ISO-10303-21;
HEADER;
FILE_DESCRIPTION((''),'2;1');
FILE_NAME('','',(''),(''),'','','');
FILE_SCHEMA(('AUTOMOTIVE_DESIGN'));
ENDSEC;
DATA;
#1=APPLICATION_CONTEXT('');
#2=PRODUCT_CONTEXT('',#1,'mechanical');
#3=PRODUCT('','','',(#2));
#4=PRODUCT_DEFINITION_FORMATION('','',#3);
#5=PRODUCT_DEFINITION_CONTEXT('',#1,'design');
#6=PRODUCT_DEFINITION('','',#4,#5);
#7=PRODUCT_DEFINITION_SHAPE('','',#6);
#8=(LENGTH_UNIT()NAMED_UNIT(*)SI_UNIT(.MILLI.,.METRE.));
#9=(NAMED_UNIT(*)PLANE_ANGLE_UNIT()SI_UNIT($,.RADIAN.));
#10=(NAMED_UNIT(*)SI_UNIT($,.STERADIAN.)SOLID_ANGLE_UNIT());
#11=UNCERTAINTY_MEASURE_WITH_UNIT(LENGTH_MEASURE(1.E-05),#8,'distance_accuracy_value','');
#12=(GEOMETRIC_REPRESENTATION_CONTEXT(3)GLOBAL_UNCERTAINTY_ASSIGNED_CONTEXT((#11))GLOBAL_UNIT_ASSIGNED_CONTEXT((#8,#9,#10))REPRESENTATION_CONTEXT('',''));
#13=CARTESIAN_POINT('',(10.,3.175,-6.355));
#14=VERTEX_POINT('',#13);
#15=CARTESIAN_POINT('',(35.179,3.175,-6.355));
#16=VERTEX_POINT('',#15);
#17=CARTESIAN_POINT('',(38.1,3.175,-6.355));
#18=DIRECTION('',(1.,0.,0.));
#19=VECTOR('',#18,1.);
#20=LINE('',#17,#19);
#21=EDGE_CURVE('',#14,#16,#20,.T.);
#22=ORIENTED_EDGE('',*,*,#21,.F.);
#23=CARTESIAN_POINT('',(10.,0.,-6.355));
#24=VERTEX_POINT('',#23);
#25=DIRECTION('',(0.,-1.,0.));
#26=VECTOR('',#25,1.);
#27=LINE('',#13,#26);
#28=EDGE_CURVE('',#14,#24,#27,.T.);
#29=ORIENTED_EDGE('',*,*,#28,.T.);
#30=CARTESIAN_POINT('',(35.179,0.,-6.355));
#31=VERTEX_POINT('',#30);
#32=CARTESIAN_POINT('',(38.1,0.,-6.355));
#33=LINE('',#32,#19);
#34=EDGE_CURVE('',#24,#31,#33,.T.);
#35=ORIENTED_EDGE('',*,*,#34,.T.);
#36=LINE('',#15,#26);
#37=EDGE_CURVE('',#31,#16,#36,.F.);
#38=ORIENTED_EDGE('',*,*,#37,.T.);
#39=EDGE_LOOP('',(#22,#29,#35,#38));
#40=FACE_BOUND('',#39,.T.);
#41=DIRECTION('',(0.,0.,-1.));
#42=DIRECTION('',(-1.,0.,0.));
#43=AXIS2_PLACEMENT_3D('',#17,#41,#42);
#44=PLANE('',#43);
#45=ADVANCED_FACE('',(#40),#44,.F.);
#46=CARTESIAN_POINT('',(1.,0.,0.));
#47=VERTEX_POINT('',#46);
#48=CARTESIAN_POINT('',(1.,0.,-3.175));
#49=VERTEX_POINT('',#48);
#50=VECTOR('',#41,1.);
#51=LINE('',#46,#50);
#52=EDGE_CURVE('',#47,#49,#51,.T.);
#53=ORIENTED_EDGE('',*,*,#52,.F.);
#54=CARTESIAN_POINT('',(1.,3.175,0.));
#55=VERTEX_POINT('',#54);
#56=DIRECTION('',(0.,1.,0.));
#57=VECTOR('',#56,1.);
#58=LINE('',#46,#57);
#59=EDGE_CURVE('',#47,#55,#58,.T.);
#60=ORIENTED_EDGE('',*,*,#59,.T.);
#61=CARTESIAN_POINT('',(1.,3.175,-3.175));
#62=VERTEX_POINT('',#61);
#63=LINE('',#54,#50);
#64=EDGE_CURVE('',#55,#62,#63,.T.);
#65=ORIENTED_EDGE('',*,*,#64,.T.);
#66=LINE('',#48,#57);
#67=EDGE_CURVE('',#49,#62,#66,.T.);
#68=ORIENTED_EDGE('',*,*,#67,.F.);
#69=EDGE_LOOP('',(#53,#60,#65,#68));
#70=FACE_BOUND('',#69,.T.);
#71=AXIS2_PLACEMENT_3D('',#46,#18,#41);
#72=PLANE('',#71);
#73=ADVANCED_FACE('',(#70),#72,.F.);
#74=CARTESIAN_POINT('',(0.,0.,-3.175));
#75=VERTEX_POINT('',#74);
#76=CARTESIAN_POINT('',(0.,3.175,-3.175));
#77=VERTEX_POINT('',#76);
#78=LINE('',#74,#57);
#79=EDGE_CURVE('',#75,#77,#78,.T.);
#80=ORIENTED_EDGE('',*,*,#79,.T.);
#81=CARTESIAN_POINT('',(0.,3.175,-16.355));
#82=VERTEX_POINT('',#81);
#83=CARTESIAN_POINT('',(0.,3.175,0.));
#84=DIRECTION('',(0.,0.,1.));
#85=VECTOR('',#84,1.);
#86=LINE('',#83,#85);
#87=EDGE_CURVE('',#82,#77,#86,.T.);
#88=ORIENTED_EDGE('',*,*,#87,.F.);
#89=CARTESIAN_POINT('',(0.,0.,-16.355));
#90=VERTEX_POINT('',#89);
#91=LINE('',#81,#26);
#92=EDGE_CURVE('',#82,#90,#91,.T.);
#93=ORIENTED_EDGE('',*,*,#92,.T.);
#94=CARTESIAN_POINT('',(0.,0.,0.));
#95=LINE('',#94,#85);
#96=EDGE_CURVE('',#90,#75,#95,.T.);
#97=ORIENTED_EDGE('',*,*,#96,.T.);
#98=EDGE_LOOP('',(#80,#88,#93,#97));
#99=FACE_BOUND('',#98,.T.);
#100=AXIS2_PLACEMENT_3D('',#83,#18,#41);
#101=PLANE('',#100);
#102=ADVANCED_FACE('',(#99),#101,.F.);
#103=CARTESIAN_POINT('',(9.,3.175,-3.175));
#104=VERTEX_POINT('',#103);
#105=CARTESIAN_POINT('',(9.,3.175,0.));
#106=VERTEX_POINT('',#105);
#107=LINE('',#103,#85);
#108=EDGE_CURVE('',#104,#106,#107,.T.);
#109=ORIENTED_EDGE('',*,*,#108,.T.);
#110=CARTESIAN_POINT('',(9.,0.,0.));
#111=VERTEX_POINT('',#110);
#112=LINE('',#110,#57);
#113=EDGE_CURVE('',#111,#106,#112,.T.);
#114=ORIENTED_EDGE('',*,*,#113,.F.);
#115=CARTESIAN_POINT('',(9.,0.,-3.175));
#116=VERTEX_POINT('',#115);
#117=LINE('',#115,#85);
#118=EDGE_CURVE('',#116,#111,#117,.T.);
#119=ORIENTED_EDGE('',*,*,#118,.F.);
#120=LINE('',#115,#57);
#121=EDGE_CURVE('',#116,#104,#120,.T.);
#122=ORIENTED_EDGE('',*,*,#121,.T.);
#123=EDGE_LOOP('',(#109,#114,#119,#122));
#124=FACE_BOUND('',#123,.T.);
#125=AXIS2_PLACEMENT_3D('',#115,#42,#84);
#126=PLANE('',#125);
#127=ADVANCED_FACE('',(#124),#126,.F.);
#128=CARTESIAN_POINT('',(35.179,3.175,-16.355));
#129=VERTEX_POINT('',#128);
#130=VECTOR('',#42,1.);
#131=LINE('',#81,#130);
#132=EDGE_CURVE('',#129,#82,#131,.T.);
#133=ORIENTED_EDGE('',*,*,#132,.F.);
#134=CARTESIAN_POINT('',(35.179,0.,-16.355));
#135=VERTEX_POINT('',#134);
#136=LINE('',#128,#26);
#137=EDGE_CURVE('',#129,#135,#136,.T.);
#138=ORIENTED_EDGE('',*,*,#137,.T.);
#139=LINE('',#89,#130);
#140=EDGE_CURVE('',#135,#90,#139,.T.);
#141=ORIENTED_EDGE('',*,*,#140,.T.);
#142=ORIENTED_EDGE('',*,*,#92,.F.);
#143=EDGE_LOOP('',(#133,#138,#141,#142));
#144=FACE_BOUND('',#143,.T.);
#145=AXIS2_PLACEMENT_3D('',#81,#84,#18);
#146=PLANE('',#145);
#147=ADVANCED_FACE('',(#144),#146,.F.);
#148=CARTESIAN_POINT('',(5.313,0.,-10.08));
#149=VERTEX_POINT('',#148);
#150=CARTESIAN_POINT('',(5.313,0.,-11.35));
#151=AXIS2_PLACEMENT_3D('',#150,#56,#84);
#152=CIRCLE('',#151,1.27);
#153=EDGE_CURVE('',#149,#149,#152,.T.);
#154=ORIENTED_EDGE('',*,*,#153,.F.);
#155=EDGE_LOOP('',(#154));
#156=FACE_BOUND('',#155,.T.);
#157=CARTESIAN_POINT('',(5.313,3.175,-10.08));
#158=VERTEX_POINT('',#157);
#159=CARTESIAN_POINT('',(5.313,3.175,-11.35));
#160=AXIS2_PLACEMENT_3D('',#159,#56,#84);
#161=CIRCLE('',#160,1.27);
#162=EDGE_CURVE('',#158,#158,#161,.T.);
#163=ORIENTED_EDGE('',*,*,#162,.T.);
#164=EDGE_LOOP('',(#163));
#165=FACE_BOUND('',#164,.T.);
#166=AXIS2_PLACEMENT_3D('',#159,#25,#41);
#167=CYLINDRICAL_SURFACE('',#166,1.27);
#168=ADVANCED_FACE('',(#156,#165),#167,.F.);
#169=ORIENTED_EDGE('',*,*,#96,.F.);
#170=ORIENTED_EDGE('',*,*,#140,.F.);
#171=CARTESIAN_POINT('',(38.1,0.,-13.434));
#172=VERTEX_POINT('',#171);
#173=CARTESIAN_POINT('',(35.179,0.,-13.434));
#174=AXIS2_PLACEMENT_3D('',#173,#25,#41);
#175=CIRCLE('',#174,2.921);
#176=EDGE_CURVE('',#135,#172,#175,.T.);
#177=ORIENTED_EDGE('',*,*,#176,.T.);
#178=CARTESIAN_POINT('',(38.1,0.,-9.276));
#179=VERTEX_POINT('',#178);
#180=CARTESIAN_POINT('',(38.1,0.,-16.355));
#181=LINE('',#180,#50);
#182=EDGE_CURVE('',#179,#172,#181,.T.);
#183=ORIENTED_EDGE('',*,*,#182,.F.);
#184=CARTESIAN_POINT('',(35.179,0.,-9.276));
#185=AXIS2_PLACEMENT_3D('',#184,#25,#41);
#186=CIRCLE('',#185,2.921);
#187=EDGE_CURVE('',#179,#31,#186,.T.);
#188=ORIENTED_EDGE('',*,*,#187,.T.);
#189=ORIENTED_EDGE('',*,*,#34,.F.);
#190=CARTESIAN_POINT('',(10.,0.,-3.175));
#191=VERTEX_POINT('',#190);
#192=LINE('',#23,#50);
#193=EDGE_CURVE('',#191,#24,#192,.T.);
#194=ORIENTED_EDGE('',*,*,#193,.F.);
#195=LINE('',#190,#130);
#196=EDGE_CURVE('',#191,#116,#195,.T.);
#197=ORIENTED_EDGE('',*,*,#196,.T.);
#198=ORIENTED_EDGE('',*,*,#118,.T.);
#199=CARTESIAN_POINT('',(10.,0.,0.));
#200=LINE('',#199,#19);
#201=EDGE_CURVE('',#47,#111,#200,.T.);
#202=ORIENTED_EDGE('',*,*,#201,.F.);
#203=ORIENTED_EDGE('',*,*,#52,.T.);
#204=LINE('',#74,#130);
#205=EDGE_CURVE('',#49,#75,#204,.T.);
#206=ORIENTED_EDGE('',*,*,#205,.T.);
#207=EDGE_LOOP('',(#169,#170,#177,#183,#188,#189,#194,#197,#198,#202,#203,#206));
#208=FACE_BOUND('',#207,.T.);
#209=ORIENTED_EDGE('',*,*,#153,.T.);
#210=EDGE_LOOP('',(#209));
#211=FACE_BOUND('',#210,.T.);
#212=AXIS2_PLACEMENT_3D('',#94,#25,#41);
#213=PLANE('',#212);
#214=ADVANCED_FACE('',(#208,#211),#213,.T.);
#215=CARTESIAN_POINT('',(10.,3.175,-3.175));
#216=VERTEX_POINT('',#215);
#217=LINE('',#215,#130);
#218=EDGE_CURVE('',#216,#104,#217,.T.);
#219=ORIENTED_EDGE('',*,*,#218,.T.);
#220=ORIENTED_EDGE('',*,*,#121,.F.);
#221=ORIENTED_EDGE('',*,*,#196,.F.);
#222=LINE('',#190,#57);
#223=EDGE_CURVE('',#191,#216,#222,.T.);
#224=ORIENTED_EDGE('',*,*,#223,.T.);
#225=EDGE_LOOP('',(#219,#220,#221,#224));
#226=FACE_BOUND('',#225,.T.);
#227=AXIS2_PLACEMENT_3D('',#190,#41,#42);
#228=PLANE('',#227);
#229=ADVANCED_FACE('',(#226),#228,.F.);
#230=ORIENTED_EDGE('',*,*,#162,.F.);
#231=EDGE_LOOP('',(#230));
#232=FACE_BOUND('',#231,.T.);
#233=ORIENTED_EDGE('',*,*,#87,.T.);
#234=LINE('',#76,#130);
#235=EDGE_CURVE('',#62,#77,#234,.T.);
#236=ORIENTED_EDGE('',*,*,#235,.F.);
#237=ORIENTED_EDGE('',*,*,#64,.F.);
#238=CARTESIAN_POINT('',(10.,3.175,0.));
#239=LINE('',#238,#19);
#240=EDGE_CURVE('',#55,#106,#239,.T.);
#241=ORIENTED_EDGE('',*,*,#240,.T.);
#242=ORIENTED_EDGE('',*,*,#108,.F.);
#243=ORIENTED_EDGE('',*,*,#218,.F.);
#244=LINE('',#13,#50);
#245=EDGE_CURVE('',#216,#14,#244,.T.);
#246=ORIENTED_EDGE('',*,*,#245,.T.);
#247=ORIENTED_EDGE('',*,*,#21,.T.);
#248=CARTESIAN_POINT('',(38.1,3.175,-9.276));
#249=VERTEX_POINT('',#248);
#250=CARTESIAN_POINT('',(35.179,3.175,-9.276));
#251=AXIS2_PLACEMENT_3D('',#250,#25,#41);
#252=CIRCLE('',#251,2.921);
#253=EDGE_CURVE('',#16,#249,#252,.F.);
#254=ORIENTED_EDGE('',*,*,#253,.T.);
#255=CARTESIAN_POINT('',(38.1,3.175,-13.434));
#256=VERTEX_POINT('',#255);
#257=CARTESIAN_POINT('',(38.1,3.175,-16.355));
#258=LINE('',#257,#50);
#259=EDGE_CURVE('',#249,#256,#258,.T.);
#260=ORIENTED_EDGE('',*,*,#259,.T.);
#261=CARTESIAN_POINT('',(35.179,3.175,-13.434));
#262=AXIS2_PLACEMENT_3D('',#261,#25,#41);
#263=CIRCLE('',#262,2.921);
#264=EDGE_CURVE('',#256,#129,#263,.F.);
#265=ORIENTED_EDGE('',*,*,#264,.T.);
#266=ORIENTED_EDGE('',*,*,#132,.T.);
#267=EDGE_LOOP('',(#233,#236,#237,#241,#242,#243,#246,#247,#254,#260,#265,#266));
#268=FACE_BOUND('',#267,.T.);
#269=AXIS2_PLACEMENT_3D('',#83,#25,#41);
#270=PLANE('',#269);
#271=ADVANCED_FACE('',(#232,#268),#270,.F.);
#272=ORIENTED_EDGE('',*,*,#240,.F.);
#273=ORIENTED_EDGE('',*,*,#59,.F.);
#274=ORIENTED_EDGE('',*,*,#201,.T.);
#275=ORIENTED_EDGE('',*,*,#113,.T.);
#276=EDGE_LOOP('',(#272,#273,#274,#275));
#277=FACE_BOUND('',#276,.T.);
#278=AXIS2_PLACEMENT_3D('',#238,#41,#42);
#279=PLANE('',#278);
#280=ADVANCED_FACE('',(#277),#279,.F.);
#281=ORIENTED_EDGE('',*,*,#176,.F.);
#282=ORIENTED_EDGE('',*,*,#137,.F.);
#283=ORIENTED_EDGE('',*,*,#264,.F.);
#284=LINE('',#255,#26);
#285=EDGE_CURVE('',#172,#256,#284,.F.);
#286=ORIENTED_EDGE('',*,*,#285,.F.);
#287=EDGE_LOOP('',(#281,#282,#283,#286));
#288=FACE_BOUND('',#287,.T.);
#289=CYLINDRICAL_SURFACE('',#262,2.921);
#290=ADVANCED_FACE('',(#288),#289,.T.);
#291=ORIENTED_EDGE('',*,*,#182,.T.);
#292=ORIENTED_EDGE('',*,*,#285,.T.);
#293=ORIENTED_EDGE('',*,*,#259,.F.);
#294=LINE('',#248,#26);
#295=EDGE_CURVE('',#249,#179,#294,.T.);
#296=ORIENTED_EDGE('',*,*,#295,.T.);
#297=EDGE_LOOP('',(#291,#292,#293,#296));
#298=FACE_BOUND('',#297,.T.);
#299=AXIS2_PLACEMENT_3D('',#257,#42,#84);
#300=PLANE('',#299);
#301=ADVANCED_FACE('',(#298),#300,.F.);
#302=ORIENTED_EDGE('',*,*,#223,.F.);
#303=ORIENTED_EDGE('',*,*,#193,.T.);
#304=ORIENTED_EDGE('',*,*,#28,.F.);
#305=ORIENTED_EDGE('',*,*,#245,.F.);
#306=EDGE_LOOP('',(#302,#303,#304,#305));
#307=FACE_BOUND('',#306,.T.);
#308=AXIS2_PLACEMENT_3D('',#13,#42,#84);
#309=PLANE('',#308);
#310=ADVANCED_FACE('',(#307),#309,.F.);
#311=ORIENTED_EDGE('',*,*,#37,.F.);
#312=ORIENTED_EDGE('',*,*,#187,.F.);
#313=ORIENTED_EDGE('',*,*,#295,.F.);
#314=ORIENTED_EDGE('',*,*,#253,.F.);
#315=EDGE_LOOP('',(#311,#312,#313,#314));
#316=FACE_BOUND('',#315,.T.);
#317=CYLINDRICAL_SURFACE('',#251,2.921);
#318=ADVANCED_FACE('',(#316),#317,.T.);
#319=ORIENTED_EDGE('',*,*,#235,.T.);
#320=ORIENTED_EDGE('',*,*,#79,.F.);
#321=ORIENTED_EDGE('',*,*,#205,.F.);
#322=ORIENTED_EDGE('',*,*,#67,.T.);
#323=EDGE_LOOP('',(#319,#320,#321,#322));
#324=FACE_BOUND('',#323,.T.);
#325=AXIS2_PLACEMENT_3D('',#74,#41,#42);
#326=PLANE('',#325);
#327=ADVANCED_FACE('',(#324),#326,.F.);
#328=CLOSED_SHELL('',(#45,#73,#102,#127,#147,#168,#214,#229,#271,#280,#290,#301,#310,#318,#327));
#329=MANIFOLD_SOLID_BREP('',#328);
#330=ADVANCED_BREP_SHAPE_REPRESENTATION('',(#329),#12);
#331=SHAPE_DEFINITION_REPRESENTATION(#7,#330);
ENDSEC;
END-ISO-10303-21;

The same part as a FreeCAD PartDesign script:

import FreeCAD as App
import Part
import Sketcher
from FreeCAD import Vector
Q = App.Units.Quantity


def edges_at(feature, points):
    """Names of the edges that pass closest to the given points."""
    edges = feature.Shape.Edges
    near = lambda p: min(range(len(edges)), key=lambda i: edges[i].distToShape(Part.Vertex(*p))[0])
    return sorted({f"Edge{near(p) + 1}" for p in points})

doc = App.newDocument("Part")
body = doc.addObject("PartDesign::Body", "Body")

sketch1 = body.newObject("Sketcher::SketchObject", "Sketch")
sketch1.AttachmentSupport = (doc.getObject("XZ_Plane"), [""])
sketch1.MapMode = "FlatFace"
sketch1.addGeometry([
    Part.LineSegment(Vector(0, -16.355, 0), Vector(0, 0, 0)),
    Part.LineSegment(Vector(0, 0, 0), Vector(10, 0, 0)),
    Part.LineSegment(Vector(10, 0, 0), Vector(10, -6.355, 0)),
    Part.LineSegment(Vector(10, -6.355, 0), Vector(38.1, -6.355, 0)),
    Part.LineSegment(Vector(38.1, -6.355, 0), Vector(38.1, -16.355, 0)),
    Part.LineSegment(Vector(38.1, -16.355, 0), Vector(0, -16.355, 0)),
    Part.Circle(Vector(5.313, -11.35, 0), Vector(0, 0, 1), 1.27),
], False)
sketch1.addConstraint([
    Sketcher.Constraint("Coincident", 0, 2, 1, 1),
    Sketcher.Constraint("Coincident", 1, 2, 2, 1),
    Sketcher.Constraint("Coincident", 2, 2, 3, 1),
    Sketcher.Constraint("Coincident", 3, 2, 4, 1),
    Sketcher.Constraint("Coincident", 4, 2, 5, 1),
    Sketcher.Constraint("Coincident", 5, 2, 0, 1),
    Sketcher.Constraint("Vertical", 0),
    Sketcher.Constraint("Horizontal", 1),
    Sketcher.Constraint("Vertical", 2),
    Sketcher.Constraint("Horizontal", 3),
    Sketcher.Constraint("Vertical", 4),
    Sketcher.Constraint("Horizontal", 5),
    Sketcher.Constraint("Coincident", 0, 2, -1, 1),
    Sketcher.Constraint("Equal", 1, 4),
    Sketcher.Constraint("Diameter", 6, Q("0.1 in")),
    Sketcher.Constraint("DistanceX", 5, 2, 5, 1, Q("1.5 in")),
    Sketcher.Constraint("DistanceX", 1, 1, 1, 2, 10.0),
    Sketcher.Constraint("DistanceY", 0, 1, 0, 2, 16.355),
    Sketcher.Constraint("DistanceX", -1, 1, 6, 3, 5.313),
    Sketcher.Constraint("DistanceY", 6, 3, -1, 1, 11.35),
])
pad1 = body.newObject("PartDesign::Pad", "Pad")
pad1.Profile = sketch1
pad1.Length = Q("0.125 in")
pad1.Reversed = True
doc.recompute()

fillet = body.newObject("PartDesign::Fillet", "Fillet")
fillet.Base = (pad1, edges_at(pad1, [(38.1, 1.587, -16.355), (38.1, 1.587, -6.355)]))
fillet.Radius = Q("0.115 in")

sketch2 = body.newObject("Sketcher::SketchObject", "Sketch001")
sketch2.AttachmentSupport = (doc.getObject("XZ_Plane"), [""])
sketch2.MapMode = "FlatFace"
sketch2.AttachmentOffset = App.Placement(Vector(0, 0, -0.125 * 25.4), App.Rotation())
sketch2.addGeometry([
    Part.LineSegment(Vector(9, -3.175, 0), Vector(9, 0, 0)),
    Part.LineSegment(Vector(9, 0, 0), Vector(10, 0, 0)),
    Part.LineSegment(Vector(10, 0, 0), Vector(10, -3.175, 0)),
    Part.LineSegment(Vector(10, -3.175, 0), Vector(9, -3.175, 0)),
    Part.LineSegment(Vector(0, -3.175, 0), Vector(0, 0, 0)),
    Part.LineSegment(Vector(0, 0, 0), Vector(1, 0, 0)),
    Part.LineSegment(Vector(1, 0, 0), Vector(1, -3.175, 0)),
    Part.LineSegment(Vector(1, -3.175, 0), Vector(0, -3.175, 0)),
], False)
sketch2.addConstraint([
    Sketcher.Constraint("Coincident", 0, 2, 1, 1),
    Sketcher.Constraint("Coincident", 1, 2, 2, 1),
    Sketcher.Constraint("Coincident", 2, 2, 3, 1),
    Sketcher.Constraint("Coincident", 3, 2, 0, 1),
    Sketcher.Constraint("Coincident", 4, 2, 5, 1),
    Sketcher.Constraint("Coincident", 5, 2, 6, 1),
    Sketcher.Constraint("Coincident", 6, 2, 7, 1),
    Sketcher.Constraint("Coincident", 7, 2, 4, 1),
    Sketcher.Constraint("Vertical", 0),
    Sketcher.Constraint("Horizontal", 1),
    Sketcher.Constraint("Vertical", 2),
    Sketcher.Constraint("Horizontal", 3),
    Sketcher.Constraint("Vertical", 4),
    Sketcher.Constraint("Horizontal", 5),
    Sketcher.Constraint("Vertical", 6),
    Sketcher.Constraint("Horizontal", 7),
    Sketcher.Constraint("Coincident", 4, 2, -1, 1),
    Sketcher.Constraint("PointOnObject", 0, 2, -1),
    Sketcher.Constraint("Horizontal", 3, 2, 6, 2),
    Sketcher.Constraint("Equal", 3, 5),
    Sketcher.Constraint("DistanceY", 0, 1, 0, 2, Q("0.125 in")),
    Sketcher.Constraint("DistanceX", 1, 1, 1, 2, 1.0),
    Sketcher.Constraint("DistanceX", -1, 1, 0, 2, 9.0),
])
pocket1 = body.newObject("PartDesign::Pocket", "Pocket")
pocket1.Profile = sketch2
pocket1.Type = "ThroughAll"
pocket1.Reversed = True

doc.recompute()
